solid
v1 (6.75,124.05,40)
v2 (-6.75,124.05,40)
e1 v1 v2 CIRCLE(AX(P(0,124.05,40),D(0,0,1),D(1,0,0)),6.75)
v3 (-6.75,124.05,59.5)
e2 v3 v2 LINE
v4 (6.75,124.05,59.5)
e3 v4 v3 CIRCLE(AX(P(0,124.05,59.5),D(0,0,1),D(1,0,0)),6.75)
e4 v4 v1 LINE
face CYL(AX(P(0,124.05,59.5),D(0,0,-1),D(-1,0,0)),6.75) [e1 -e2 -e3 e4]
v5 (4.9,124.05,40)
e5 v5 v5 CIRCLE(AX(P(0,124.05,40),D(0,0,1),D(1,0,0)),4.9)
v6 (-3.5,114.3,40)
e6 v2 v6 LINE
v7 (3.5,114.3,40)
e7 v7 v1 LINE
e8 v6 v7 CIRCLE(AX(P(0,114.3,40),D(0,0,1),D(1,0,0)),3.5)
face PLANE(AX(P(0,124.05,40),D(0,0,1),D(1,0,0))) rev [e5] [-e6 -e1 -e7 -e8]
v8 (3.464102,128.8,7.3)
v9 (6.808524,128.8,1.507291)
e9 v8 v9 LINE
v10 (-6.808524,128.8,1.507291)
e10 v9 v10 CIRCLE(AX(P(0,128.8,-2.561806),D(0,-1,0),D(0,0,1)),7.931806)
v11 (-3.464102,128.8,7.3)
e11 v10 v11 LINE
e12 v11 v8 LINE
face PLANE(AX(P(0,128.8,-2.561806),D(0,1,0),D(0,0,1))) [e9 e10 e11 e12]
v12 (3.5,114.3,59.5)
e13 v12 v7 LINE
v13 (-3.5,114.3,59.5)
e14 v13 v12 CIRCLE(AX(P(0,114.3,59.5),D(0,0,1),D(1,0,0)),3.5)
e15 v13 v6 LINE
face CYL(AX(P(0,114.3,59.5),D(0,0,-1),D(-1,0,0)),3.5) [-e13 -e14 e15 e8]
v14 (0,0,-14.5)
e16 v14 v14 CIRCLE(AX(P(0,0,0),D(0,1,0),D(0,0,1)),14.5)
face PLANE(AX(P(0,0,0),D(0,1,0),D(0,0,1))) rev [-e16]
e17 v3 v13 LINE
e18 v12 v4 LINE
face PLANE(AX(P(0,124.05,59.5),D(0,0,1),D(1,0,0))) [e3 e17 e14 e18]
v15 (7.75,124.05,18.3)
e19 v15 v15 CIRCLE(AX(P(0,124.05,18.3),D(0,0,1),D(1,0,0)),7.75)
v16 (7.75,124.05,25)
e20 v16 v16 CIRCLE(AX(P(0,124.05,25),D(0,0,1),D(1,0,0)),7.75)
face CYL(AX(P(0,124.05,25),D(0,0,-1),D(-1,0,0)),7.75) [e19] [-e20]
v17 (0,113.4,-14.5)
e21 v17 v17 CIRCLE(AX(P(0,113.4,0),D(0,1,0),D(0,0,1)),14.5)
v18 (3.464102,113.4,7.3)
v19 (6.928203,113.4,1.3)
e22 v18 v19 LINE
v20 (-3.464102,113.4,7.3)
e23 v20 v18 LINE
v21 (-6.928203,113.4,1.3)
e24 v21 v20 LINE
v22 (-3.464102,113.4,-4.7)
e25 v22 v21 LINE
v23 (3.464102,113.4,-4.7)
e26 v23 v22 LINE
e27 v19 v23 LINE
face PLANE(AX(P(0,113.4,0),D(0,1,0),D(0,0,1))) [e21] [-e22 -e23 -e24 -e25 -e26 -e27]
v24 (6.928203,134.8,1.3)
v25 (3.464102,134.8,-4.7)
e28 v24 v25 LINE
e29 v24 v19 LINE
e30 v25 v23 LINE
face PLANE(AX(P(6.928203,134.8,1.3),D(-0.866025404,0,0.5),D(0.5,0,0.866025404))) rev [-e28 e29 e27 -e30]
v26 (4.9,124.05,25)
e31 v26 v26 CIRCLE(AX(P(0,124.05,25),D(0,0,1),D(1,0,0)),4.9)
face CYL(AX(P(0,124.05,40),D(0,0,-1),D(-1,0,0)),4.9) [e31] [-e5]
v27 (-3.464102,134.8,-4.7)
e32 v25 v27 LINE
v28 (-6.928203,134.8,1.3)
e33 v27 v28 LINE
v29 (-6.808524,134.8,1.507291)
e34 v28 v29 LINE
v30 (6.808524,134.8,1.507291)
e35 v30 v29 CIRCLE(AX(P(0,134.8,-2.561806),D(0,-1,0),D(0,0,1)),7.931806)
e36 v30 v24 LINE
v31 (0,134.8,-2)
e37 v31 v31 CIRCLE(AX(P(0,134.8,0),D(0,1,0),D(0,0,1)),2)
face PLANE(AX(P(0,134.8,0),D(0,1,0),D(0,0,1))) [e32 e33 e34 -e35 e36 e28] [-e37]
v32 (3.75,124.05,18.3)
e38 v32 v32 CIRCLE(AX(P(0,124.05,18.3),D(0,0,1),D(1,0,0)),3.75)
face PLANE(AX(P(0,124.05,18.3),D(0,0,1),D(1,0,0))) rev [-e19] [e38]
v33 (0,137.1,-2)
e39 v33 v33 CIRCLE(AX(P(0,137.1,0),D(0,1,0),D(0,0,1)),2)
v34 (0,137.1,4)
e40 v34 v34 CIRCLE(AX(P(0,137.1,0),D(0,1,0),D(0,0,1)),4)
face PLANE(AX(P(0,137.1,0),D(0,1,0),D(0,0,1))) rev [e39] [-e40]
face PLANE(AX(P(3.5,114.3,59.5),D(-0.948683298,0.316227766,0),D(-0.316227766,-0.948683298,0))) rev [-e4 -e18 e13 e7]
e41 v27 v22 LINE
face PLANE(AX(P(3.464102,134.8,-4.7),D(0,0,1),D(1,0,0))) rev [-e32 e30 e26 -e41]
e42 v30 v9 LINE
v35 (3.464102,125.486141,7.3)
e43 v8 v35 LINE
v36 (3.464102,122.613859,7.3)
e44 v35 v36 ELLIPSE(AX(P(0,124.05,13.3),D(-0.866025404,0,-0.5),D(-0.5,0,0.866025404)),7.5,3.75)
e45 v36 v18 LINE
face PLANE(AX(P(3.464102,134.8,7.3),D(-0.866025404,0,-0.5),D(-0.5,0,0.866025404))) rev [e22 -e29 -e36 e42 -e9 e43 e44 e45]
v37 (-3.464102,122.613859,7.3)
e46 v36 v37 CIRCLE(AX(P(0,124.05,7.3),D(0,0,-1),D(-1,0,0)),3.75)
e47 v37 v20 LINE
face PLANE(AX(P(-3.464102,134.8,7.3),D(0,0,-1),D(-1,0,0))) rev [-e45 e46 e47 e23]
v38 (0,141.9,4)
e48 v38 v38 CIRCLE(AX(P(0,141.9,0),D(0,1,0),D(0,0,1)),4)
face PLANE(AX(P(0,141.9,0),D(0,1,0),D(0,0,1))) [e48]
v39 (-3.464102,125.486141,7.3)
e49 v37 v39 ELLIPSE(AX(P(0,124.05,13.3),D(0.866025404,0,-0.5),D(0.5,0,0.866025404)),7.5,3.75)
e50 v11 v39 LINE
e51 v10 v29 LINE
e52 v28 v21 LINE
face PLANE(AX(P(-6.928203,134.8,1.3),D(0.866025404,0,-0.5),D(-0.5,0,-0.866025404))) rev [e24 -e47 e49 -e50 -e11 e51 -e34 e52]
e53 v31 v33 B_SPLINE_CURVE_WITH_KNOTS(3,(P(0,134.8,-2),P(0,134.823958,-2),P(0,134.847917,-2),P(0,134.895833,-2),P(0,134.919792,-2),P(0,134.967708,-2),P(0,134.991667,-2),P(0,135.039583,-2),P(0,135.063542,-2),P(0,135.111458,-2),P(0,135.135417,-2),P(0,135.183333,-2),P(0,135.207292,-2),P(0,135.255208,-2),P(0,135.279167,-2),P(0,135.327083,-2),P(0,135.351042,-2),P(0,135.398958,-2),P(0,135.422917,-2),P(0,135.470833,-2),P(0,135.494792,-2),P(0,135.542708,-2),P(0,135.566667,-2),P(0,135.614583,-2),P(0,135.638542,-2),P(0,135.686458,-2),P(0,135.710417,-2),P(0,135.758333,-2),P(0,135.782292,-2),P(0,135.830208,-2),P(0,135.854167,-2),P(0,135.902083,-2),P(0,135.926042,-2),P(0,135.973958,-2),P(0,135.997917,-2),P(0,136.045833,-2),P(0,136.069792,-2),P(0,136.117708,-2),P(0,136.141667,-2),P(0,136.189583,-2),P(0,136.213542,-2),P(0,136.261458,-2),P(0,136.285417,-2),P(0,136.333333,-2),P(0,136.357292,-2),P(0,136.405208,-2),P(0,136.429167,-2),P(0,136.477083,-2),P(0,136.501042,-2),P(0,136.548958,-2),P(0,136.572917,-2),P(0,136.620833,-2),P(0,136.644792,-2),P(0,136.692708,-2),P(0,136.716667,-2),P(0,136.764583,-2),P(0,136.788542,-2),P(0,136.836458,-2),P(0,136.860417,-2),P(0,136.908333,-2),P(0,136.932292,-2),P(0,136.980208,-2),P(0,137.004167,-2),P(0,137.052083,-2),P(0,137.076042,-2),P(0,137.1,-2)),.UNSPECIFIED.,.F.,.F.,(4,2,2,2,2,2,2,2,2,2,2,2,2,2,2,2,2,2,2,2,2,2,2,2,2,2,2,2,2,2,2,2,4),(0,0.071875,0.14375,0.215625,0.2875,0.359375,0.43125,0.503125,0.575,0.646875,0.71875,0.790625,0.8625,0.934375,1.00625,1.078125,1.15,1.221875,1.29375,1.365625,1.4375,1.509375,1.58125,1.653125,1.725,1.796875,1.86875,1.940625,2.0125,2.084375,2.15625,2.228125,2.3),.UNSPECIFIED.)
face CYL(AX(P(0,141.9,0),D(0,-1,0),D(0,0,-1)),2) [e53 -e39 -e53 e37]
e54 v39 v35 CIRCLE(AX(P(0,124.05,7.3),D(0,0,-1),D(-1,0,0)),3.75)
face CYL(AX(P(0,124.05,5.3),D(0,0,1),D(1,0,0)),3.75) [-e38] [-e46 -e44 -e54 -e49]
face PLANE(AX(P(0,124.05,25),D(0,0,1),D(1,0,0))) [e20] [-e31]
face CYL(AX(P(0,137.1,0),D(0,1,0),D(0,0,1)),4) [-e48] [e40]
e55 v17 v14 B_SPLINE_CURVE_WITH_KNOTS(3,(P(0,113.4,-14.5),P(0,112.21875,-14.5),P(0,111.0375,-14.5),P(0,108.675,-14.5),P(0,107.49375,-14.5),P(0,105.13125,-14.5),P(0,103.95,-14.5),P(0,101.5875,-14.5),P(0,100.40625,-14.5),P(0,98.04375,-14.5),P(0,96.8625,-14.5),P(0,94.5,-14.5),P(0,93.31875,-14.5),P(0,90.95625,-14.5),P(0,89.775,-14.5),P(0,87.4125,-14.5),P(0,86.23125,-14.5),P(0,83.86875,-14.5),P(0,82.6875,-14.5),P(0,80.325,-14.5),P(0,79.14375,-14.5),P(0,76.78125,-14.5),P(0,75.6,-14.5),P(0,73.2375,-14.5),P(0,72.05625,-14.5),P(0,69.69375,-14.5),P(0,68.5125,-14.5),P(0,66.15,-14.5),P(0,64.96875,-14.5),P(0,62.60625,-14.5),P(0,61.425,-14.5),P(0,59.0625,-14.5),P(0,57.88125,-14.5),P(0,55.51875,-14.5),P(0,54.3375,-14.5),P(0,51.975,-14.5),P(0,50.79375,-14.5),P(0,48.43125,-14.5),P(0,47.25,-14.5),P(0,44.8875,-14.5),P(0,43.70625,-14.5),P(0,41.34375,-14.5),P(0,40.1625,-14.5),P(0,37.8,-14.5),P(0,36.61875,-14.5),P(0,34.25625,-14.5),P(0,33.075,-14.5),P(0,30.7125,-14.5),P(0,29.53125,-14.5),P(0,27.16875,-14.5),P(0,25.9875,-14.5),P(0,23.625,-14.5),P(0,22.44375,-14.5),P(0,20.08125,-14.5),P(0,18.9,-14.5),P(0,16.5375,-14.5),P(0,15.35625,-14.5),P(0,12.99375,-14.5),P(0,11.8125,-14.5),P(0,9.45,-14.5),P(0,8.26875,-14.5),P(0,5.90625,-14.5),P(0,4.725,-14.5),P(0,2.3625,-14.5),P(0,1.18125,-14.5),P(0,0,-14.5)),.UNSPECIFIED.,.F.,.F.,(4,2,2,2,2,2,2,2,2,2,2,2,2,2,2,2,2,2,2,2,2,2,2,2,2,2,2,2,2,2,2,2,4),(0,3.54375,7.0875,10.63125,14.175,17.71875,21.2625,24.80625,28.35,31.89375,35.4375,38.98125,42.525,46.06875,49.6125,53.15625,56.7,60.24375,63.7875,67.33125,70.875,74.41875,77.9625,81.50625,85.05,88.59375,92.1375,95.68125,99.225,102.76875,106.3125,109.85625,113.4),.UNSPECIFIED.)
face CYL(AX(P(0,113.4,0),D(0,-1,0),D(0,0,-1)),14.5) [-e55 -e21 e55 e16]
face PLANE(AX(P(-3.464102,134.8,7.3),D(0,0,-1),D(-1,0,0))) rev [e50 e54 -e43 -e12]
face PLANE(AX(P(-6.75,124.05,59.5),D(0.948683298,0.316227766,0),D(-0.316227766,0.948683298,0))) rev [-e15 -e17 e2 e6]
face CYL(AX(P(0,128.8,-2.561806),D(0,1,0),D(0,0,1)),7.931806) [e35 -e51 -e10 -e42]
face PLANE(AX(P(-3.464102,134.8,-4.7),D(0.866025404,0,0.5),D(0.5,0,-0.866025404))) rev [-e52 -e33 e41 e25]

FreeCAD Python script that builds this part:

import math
import FreeCAD as App
import Part
import Sketcher
Q = App.Units.Quantity


def add_polygon(sketch, points):
    """Adds a closed chain of lines whose ends are joined by coincident constraints."""
    first, n = sketch.GeometryCount, len(points)
    for a, b in zip(points, points[1:] + points[:1]):
        sketch.addGeometry(Part.LineSegment(App.Vector(*a, 0), App.Vector(*b, 0)), False)
    for i in range(n):
        sketch.addConstraint(Sketcher.Constraint("Coincident", first + i, 2, first + (i + 1) % n, 1))

doc = App.newDocument("Part")
body = doc.addObject("PartDesign::Body", "Body")

# Sketch on XZ plane
sketch1 = body.newObject("Sketcher::SketchObject", "Sketch")
sketch1.AttachmentSupport = (doc.getObject("XZ_Plane"), [""])
sketch1.MapMode = "FlatFace"
sketch1.addGeometry(Part.Circle(App.Vector(0, 0, 0), App.Vector(0, 0, 1), 14), False)
sketch1.addConstraint([
    Sketcher.Constraint("Coincident", 0, 3, -1, 1),
    Sketcher.Constraint("Diameter", 0, 29.0),
])
pad1 = body.newObject("PartDesign::Pad", "Pad")
pad1.Profile = sketch1
pad1.Length = 113.4
pad1.Reversed = True

# Sketch on XZ plane
sketch2 = body.newObject("Sketcher::SketchObject", "Sketch001")
sketch2.AttachmentSupport = (doc.getObject("XZ_Plane"), [""])
sketch2.MapMode = "FlatFace"
sketch2.AttachmentOffset = App.Placement(App.Vector(0, 0, -113.4), App.Rotation())
sketch2.addGeometry(Part.Circle(App.Vector(0, 0, 0), App.Vector(0, 0, 1), 2), False)
sketch2.addConstraint([
    Sketcher.Constraint("Coincident", 0, 3, -1, 1),
    Sketcher.Constraint("Diameter", 0, 4.0),
])
pad2 = body.newObject("PartDesign::Pad", "Pad001")
pad2.Profile = sketch2
pad2.Length = 28.5
pad2.Reversed = True

# Sketch on XZ plane
sketch3 = body.newObject("Sketcher::SketchObject", "Sketch002")
sketch3.AttachmentSupport = (doc.getObject("XZ_Plane"), [""])
sketch3.MapMode = "FlatFace"
sketch3.AttachmentOffset = App.Placement(App.Vector(0, 0, -141.9), App.Rotation())
sketch3.addGeometry(Part.Circle(App.Vector(0, 0, 0), App.Vector(0, 0, 1), 4), False)
sketch3.addConstraint([
    Sketcher.Constraint("Coincident", 0, 3, -1, 1),
    Sketcher.Constraint("Diameter", 0, 8.0),
])
pad3 = body.newObject("PartDesign::Pad", "Pad002")
pad3.Profile = sketch3
pad3.Length = 4.8

# Sketch on XZ plane
sketch4 = body.newObject("Sketcher::SketchObject", "Sketch003")
sketch4.AttachmentSupport = (doc.getObject("XZ_Plane"), [""])
sketch4.MapMode = "FlatFace"
sketch4.AttachmentOffset = App.Placement(App.Vector(0, 0, -113.4), App.Rotation())
add_polygon(sketch4, [(3, -5), (-3, -5), (-7, 1), (-3, 7), (3, 7), (7, 1)])  # lines 0-5
sketch4.addConstraint([
    Sketcher.Constraint("Horizontal", 0),
    Sketcher.Constraint("Horizontal", 3),
    Sketcher.Constraint("Symmetric", 1, 2, 4, 2, -2),
    Sketcher.Constraint("Parallel", 1, 4),
    Sketcher.Constraint("Parallel", 2, 5),
    Sketcher.Constraint("Vertical", 0, 2, 2, 2),
    Sketcher.Constraint("Vertical", 3, 2, 5, 2),
    Sketcher.Constraint("Angle", 1, Q("120 deg")),
    Sketcher.Constraint("DistanceY", 0, 2, 1, 2, 6.0),
    Sketcher.Constraint("DistanceY", 0, 2, -1, 1, 4.7),
    Sketcher.Constraint("DistanceX", 0, 2, -1, 1, 3.464102),
])
pad4 = body.newObject("PartDesign::Pad", "Pad003")
pad4.Profile = sketch4
pad4.Length = 21.4
pad4.Reversed = True

# Sketch on XZ plane
sketch5 = body.newObject("Sketcher::SketchObject", "Sketch004")
sketch5.AttachmentSupport = (doc.getObject("XZ_Plane"), [""])
sketch5.MapMode = "FlatFace"
sketch5.AttachmentOffset = App.Placement(App.Vector(0, 0, -134.8), App.Rotation())
sketch5.addGeometry([
    Part.LineSegment(App.Vector(-7, 1, 0), App.Vector(-7, 9, 0)),
    Part.LineSegment(App.Vector(-7, 9, 0), App.Vector(7, 9, 0)),
    Part.LineSegment(App.Vector(7, 9, 0), App.Vector(7, 1, 0)),
    Part.ArcOfCircle(Part.Circle(App.Vector(0, -3, 0), App.Vector(0, 0, 1), 8), math.radians(29), math.radians(151)),
], False)
sketch5.addConstraint([
    Sketcher.Constraint("Coincident", 0, 2, 1, 1),
    Sketcher.Constraint("Coincident", 1, 2, 2, 1),
    Sketcher.Constraint("Coincident", 2, 2, 3, 1),
    Sketcher.Constraint("Coincident", 3, 2, 0, 1),
    Sketcher.Constraint("Vertical", 0),
    Sketcher.Constraint("Horizontal", 1),
    Sketcher.Constraint("Vertical", 2),
    Sketcher.Constraint("Symmetric", 2, 2, 3, 2, -2),
    Sketcher.Constraint("DistanceY", -1, 1, 2, 2, 1.3),
    Sketcher.Constraint("Radius", 3, 7.931806),
    Sketcher.Constraint("DistanceX", 1, 1, 1, 2, 13.856406),
    Sketcher.Constraint("DistanceY", 0, 1, 0, 2, 8.165765),
])
pocket1 = body.newObject("PartDesign::Pocket", "Pocket")
pocket1.Profile = sketch5
pocket1.Length = 6
pocket1.Reversed = True

# Sketch on XY plane
sketch6 = body.newObject("Sketcher::SketchObject", "Sketch005")
sketch6.AttachmentSupport = (doc.getObject("XY_Plane"), [""])
sketch6.MapMode = "FlatFace"
sketch6.AttachmentOffset = App.Placement(App.Vector(0, 0, 7.3), App.Rotation())
sketch6.addGeometry(Part.Circle(App.Vector(0, 124, 0), App.Vector(0, 0, 1), 3.8), False)
sketch6.addConstraint([
    Sketcher.Constraint("PointOnObject", 0, 3, -2),
    Sketcher.Constraint("Diameter", 0, 7.5),
    Sketcher.Constraint("DistanceY", -1, 1, 0, 3, 124.05),
])
pad5 = body.newObject("PartDesign::Pad", "Pad004")
pad5.Profile = sketch6
pad5.Type = "TwoLengths"
pad5.Length = 11
pad5.Length2 = 2

# Sketch on XY plane
sketch7 = body.newObject("Sketcher::SketchObject", "Sketch006")
sketch7.AttachmentSupport = (doc.getObject("XY_Plane"), [""])
sketch7.MapMode = "FlatFace"
sketch7.AttachmentOffset = App.Placement(App.Vector(0, 0, 18.3), App.Rotation())
sketch7.addGeometry(Part.Circle(App.Vector(0, 124, 0), App.Vector(0, 0, 1), 8), False)
sketch7.addConstraint([
    Sketcher.Constraint("PointOnObject", 0, 3, -2),
    Sketcher.Constraint("Diameter", 0, 15.5),
    Sketcher.Constraint("DistanceY", -1, 1, 0, 3, 124.05),
])
pad6 = body.newObject("PartDesign::Pad", "Pad005")
pad6.Profile = sketch7
pad6.Length = 6.7

# Sketch on XY plane
sketch8 = body.newObject("Sketcher::SketchObject", "Sketch007")
sketch8.AttachmentSupport = (doc.getObject("XY_Plane"), [""])
sketch8.MapMode = "FlatFace"
sketch8.AttachmentOffset = App.Placement(App.Vector(0, 0, 25), App.Rotation())
sketch8.addGeometry(Part.Circle(App.Vector(0, 124, 0), App.Vector(0, 0, 1), 4.9), False)
sketch8.addConstraint([
    Sketcher.Constraint("PointOnObject", 0, 3, -2),
    Sketcher.Constraint("Diameter", 0, 9.8),
    Sketcher.Constraint("DistanceY", -1, 1, 0, 3, 124.05),
])
pad7 = body.newObject("PartDesign::Pad", "Pad006")
pad7.Profile = sketch8
pad7.Length = 15

# Sketch on XY plane
sketch9 = body.newObject("Sketcher::SketchObject", "Sketch008")
sketch9.AttachmentSupport = (doc.getObject("XY_Plane"), [""])
sketch9.MapMode = "FlatFace"
sketch9.AttachmentOffset = App.Placement(App.Vector(0, 0, 40), App.Rotation())
sketch9.addGeometry([
    Part.LineSegment(App.Vector(-6.8, 124, 0), App.Vector(-3.5, 114.3, 0)),
    Part.ArcOfCircle(Part.Circle(App.Vector(0, 114.3, 0), App.Vector(0, 0, 1), 3.5), math.radians(180), math.radians(360)),
    Part.LineSegment(App.Vector(3.5, 114.3, 0), App.Vector(6.8, 124, 0)),
    Part.ArcOfCircle(Part.Circle(App.Vector(0, 124, 0), App.Vector(0, 0, 1), 6.8), math.radians(0), math.radians(180)),
], False)
sketch9.addConstraint([
    Sketcher.Constraint("Coincident", 0, 2, 1, 1),
    Sketcher.Constraint("Coincident", 1, 2, 2, 1),
    Sketcher.Constraint("Coincident", 2, 2, 3, 1),
    Sketcher.Constraint("Coincident", 3, 2, 0, 1),
    Sketcher.Constraint("Symmetric", 0, 2, 1, 2, -2),
    Sketcher.Constraint("Symmetric", 2, 2, 3, 2, -2),
    Sketcher.Constraint("Horizontal", 1, 3, 0, 2),
    Sketcher.Constraint("Horizontal", 3, 3, 2, 2),
    Sketcher.Constraint("Radius", 1, 3.5),
    Sketcher.Constraint("Radius", 3, 6.75),
    Sketcher.Constraint("DistanceY", -1, 1, 1, 3, 114.3),
    Sketcher.Constraint("DistanceY", -1, 1, 3, 3, 124.05),
])
pad8 = body.newObject("PartDesign::Pad", "Pad007")
pad8.Profile = sketch9
pad8.Length = 19.5

doc.recompute()
